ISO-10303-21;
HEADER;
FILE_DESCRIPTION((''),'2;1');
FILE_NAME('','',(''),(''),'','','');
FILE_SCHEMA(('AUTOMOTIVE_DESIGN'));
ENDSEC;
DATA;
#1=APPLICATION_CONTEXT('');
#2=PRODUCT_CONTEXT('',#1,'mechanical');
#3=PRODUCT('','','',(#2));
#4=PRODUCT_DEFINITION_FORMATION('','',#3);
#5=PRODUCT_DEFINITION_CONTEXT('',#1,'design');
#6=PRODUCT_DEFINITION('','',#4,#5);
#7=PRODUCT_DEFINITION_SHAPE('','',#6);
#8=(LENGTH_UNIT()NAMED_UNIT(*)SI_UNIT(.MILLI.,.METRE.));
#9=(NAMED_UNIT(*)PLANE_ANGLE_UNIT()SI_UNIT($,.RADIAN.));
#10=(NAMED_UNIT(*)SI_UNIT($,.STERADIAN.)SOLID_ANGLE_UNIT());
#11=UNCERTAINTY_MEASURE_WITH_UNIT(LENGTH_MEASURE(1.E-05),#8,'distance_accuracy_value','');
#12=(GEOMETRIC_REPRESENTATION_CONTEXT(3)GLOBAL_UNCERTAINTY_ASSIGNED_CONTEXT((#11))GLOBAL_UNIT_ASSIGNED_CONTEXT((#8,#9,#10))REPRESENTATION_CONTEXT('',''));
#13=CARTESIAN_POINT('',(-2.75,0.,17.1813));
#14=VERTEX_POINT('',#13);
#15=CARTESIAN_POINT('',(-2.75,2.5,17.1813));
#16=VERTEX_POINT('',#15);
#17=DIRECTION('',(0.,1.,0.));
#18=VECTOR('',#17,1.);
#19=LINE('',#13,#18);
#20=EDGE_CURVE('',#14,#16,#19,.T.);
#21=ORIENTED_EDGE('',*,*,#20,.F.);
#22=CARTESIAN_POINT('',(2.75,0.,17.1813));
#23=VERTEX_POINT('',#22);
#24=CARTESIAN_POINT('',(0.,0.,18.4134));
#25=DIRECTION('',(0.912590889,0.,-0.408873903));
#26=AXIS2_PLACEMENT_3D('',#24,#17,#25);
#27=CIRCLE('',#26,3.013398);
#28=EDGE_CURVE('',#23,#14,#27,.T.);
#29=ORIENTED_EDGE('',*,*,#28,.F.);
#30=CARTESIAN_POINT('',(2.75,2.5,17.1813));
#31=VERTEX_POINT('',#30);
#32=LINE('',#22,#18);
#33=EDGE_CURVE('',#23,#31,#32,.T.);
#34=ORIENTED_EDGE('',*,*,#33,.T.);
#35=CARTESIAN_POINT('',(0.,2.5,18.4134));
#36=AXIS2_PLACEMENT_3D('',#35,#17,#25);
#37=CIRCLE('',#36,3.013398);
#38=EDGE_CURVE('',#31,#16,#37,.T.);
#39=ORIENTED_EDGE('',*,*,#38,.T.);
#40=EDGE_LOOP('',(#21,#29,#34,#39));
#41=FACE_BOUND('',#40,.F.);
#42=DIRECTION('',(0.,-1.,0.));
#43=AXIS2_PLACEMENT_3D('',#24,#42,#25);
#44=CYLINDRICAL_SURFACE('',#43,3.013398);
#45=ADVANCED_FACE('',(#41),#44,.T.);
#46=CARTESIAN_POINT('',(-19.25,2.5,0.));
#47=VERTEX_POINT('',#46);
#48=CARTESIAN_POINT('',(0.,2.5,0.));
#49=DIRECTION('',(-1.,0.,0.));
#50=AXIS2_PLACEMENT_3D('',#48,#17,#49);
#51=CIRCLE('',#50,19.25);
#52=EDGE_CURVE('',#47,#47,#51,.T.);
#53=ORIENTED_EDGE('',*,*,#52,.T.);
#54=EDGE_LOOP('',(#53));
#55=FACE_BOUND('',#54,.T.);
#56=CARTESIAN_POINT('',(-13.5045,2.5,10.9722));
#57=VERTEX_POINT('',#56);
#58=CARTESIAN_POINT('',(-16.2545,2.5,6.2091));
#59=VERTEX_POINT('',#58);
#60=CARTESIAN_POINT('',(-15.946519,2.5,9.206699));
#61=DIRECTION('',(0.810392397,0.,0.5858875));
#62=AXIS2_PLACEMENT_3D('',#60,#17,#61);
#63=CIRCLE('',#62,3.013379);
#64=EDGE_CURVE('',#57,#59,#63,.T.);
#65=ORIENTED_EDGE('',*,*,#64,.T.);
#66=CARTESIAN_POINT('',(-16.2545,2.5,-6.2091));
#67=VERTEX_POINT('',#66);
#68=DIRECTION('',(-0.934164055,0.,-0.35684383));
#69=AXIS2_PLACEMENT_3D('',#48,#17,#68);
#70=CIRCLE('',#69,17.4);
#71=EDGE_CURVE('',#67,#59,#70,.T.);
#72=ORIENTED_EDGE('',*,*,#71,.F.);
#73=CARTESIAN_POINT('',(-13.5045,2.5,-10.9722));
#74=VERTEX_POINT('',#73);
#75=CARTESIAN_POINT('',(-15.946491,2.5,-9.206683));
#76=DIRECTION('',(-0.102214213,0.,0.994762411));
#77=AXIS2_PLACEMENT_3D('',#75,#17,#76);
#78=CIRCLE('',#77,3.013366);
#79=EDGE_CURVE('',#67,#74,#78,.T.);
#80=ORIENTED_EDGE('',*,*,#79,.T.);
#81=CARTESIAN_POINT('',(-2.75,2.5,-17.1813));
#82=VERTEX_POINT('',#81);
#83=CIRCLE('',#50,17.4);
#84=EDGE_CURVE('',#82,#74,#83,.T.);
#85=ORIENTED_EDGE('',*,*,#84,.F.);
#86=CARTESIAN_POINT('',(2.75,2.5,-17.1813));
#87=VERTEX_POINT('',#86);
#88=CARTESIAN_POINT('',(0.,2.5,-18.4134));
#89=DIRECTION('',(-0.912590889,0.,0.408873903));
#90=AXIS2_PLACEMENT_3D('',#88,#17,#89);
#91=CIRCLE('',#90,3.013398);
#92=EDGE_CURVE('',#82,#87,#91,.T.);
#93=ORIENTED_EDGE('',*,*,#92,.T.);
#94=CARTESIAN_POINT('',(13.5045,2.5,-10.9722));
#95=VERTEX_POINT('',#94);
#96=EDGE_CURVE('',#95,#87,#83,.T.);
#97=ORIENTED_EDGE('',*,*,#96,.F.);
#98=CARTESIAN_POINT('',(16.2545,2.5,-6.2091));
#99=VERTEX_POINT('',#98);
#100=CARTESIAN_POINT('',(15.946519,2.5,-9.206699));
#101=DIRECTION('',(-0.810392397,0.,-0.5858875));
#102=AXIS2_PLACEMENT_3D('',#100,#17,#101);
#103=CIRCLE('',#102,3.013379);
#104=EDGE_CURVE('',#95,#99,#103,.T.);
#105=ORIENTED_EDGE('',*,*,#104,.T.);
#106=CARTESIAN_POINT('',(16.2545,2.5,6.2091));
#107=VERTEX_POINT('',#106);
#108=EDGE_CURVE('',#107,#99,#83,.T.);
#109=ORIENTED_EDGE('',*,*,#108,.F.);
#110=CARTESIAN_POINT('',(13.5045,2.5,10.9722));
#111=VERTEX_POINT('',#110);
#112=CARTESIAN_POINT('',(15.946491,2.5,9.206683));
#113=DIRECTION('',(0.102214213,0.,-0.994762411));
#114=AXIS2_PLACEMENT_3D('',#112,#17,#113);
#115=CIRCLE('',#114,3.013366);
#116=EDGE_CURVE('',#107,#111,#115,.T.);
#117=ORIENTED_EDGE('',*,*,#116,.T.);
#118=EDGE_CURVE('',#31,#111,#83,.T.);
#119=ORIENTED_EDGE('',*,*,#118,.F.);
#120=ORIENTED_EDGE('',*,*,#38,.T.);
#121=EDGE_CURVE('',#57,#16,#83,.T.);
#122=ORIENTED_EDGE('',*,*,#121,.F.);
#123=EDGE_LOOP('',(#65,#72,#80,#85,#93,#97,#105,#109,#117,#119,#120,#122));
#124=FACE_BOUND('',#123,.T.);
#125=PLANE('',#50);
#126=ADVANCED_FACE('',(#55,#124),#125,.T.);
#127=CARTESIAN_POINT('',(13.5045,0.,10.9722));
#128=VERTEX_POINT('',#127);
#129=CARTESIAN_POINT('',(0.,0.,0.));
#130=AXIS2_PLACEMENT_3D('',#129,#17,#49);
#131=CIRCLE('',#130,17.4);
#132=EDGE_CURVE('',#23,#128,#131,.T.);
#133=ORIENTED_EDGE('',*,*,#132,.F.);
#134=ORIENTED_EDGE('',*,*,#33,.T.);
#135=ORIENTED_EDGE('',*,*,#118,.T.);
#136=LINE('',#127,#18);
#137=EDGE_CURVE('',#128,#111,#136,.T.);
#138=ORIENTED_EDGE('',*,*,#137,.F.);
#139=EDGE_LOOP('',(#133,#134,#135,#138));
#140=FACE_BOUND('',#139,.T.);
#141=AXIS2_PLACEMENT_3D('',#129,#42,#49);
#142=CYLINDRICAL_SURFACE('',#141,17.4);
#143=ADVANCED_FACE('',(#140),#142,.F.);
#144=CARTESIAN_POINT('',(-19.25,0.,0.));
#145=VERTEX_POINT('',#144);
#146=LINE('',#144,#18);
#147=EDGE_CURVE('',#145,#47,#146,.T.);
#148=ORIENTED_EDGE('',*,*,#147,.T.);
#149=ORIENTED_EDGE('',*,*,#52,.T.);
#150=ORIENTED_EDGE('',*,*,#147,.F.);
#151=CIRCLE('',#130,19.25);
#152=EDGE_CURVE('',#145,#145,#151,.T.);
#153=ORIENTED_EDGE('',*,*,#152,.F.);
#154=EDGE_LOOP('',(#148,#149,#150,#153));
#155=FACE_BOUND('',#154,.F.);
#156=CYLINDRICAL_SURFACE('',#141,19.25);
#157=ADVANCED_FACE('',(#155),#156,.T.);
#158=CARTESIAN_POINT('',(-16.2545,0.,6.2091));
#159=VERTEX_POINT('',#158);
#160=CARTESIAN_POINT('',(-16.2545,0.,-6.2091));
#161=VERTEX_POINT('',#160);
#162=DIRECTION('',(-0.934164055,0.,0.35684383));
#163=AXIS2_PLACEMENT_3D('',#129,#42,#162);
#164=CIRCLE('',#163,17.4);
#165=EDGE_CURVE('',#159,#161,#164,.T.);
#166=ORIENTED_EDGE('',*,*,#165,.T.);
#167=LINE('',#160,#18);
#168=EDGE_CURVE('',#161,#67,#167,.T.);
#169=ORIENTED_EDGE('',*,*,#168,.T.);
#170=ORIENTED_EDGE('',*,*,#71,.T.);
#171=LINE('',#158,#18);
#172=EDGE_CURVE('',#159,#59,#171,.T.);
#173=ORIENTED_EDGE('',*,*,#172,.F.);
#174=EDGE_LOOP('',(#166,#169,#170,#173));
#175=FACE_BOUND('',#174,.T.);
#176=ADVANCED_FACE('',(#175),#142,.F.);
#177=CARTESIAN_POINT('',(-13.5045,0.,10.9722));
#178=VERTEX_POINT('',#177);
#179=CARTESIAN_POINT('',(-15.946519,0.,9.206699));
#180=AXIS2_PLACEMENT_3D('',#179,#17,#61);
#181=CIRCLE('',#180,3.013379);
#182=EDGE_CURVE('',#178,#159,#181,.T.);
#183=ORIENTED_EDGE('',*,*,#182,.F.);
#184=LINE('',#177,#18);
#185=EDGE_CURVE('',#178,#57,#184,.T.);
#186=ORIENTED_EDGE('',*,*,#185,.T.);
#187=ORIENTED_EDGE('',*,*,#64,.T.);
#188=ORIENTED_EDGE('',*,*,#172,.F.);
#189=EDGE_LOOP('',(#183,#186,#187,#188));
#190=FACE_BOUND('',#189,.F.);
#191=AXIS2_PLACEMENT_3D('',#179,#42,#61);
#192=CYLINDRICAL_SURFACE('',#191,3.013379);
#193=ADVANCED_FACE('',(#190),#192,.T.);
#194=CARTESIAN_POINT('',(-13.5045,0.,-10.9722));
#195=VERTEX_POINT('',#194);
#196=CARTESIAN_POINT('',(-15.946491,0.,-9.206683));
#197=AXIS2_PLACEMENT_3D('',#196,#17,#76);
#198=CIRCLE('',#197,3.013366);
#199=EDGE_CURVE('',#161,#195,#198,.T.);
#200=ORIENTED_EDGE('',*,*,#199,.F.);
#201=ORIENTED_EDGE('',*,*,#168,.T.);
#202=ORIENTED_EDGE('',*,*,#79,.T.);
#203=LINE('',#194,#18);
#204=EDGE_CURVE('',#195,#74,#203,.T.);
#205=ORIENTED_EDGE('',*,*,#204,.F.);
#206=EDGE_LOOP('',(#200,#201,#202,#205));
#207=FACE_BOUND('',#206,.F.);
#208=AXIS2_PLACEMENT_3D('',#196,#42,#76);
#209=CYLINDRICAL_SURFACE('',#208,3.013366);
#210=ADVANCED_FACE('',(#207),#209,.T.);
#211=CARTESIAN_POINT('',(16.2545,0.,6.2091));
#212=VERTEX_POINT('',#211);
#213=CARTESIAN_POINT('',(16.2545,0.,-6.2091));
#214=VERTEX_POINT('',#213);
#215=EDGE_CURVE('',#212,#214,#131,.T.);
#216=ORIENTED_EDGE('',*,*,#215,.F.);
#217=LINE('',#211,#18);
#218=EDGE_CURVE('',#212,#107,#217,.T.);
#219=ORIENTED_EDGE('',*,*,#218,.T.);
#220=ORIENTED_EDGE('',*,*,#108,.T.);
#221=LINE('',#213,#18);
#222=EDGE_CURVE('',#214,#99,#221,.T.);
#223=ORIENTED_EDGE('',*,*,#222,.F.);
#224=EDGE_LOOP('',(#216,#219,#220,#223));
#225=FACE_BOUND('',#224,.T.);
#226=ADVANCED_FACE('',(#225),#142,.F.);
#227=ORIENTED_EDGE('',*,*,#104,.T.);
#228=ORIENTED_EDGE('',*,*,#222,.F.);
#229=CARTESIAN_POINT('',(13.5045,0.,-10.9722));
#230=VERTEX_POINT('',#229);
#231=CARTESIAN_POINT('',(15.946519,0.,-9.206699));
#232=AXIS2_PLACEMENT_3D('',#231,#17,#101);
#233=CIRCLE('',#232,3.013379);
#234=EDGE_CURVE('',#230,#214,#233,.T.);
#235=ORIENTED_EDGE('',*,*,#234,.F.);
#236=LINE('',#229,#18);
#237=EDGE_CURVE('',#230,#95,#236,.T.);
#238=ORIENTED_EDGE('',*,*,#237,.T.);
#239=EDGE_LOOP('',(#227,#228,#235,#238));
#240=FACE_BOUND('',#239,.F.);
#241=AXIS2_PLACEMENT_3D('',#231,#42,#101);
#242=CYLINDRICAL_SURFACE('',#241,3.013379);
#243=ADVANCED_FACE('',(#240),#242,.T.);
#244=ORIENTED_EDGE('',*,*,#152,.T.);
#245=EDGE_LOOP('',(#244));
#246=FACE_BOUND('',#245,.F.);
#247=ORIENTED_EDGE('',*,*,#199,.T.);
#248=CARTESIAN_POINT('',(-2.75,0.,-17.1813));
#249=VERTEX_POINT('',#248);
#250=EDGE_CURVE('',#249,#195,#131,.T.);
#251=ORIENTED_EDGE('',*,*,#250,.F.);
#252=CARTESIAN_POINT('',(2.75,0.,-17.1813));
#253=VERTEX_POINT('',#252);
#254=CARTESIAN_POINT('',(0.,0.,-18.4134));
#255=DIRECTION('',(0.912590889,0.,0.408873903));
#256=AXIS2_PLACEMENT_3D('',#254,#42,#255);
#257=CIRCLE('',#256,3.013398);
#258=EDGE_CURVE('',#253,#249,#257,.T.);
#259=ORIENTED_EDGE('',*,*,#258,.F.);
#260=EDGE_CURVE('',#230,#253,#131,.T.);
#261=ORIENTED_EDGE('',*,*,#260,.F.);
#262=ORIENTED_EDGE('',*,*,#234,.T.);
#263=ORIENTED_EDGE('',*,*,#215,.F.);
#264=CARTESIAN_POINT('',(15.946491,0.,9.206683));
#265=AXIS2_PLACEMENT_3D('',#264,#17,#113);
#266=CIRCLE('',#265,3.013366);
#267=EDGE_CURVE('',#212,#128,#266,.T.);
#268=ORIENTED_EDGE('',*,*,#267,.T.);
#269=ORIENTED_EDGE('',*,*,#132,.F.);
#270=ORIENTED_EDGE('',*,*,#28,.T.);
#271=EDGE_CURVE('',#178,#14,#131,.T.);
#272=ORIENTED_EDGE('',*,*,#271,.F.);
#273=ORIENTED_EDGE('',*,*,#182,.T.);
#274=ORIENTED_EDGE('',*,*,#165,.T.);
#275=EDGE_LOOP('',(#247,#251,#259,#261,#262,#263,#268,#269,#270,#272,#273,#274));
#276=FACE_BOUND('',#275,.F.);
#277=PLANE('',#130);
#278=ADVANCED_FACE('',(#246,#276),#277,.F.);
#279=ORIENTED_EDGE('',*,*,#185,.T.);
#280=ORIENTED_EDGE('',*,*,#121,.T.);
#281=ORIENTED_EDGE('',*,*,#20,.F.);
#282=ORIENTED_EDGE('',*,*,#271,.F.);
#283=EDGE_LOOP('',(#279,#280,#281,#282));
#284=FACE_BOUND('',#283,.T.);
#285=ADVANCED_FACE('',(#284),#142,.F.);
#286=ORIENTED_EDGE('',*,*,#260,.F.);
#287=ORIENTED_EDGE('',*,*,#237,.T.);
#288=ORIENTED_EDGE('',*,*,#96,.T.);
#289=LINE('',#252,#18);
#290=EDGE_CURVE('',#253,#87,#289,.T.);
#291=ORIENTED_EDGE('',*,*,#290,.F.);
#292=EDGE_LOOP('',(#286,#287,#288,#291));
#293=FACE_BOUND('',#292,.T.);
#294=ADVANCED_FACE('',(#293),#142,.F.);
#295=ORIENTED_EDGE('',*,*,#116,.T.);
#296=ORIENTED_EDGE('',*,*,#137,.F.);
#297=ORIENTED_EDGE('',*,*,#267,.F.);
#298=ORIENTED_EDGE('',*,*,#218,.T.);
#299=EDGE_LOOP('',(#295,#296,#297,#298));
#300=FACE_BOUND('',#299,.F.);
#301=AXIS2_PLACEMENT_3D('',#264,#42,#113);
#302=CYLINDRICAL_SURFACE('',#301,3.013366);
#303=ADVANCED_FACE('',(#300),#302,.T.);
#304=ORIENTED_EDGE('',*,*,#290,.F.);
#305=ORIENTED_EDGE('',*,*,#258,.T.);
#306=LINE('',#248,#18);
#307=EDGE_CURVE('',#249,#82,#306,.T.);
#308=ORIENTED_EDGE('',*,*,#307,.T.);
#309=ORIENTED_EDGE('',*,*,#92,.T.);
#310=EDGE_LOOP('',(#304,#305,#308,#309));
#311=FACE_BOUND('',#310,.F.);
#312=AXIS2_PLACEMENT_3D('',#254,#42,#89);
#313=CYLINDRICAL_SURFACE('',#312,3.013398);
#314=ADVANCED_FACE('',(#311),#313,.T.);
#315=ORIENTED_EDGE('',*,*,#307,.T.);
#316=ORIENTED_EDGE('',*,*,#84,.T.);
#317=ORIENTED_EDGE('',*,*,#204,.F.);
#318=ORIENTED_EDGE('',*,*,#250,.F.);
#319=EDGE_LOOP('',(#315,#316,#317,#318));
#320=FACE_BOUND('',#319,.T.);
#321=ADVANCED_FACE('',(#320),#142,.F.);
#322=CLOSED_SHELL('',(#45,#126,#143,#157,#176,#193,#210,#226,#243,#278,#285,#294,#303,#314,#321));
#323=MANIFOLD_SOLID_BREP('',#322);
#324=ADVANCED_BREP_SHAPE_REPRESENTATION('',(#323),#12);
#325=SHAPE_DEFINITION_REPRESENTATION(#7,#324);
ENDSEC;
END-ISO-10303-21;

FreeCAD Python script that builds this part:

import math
import FreeCAD as App
import Part
import Sketcher

V = App.Vector

doc = App.newDocument("Part")
body = doc.addObject("PartDesign::Body", "Body")

sketch1 = doc.addObject("Sketcher::SketchObject", "Sketch")
body.addObject(sketch1)
sketch1.AttachmentSupport = (doc.XZ_Plane, [""])
sketch1.MapMode = "FlatFace"
sketch1.addGeometry([
    Part.Circle(V(0, 0, 0), V(0, 0, 1), 19.2),
    Part.ArcOfCircle(Part.Circle(V(-15.9, 9.2, 0), V(0, 0, 1), 3), math.radians(-96), math.radians(36)),
    Part.ArcOfCircle(Part.Circle(V(0, 0, 0), V(0, 0, 1), 17.4), math.radians(159), math.radians(201)),
    Part.ArcOfCircle(Part.Circle(V(-15.9, -9.2, 0), V(0, 0, 1), 3), math.radians(-36), math.radians(96)),
    Part.ArcOfCircle(Part.Circle(V(0, 0, 0), V(0, 0, 1), 17.4), math.radians(-141), math.radians(-99)),
    Part.ArcOfCircle(Part.Circle(V(0, -18.4, 0), V(0, 0, 1), 3), math.radians(24), math.radians(156)),
    Part.ArcOfCircle(Part.Circle(V(0, 0, 0), V(0, 0, 1), 17.4), math.radians(-81), math.radians(-39)),
    Part.ArcOfCircle(Part.Circle(V(15.9, -9.2, 0), V(0, 0, 1), 3), math.radians(84), math.radians(216)),
    Part.ArcOfCircle(Part.Circle(V(0, 0, 0), V(0, 0, 1), 17.4), math.radians(-21), math.radians(21)),
    Part.ArcOfCircle(Part.Circle(V(15.9, 9.2, 0), V(0, 0, 1), 3), math.radians(144), math.radians(276)),
    Part.ArcOfCircle(Part.Circle(V(0, 0, 0), V(0, 0, 1), 17.4), math.radians(39), math.radians(81)),
    Part.ArcOfCircle(Part.Circle(V(0, 18.4, 0), V(0, 0, 1), 3), math.radians(-156), math.radians(-24)),
    Part.ArcOfCircle(Part.Circle(V(0, 0, 0), V(0, 0, 1), 17.4), math.radians(99), math.radians(141)),
], False)
sketch1.addConstraint([
    Sketcher.Constraint("Coincident", 1, 1, 2, 1),
    Sketcher.Constraint("Coincident", 2, 2, 3, 2),
    Sketcher.Constraint("Coincident", 3, 1, 4, 1),
    Sketcher.Constraint("Coincident", 4, 2, 5, 2),
    Sketcher.Constraint("Coincident", 5, 1, 6, 1),
    Sketcher.Constraint("Coincident", 6, 2, 7, 2),
    Sketcher.Constraint("Coincident", 7, 1, 8, 1),
    Sketcher.Constraint("Coincident", 8, 2, 9, 2),
    Sketcher.Constraint("Coincident", 9, 1, 10, 1),
    Sketcher.Constraint("Coincident", 10, 2, 11, 2),
    Sketcher.Constraint("Coincident", 11, 1, 12, 1),
    Sketcher.Constraint("Coincident", 12, 2, 1, 2),
    Sketcher.Constraint("Coincident", 0, 3, -1, 1),
    Sketcher.Constraint("Coincident", 2, 3, -1, 1),
    Sketcher.Constraint("Coincident", 4, 3, -1, 1),
    Sketcher.Constraint("Coincident", 6, 3, -1, 1),
    Sketcher.Constraint("Coincident", 8, 3, -1, 1),
    Sketcher.Constraint("Coincident", 10, 3, -1, 1),
    Sketcher.Constraint("Coincident", 12, 3, -1, 1),
    Sketcher.Constraint("Equal", 1, 3),
    Sketcher.Constraint("Equal", 2, 4),
    Sketcher.Constraint("Equal", 3, 5),
    Sketcher.Constraint("Equal", 4, 6),
    Sketcher.Constraint("Equal", 5, 7),
    Sketcher.Constraint("Equal", 6, 8),
    Sketcher.Constraint("Equal", 7, 9),
    Sketcher.Constraint("Equal", 8, 10),
    Sketcher.Constraint("Equal", 9, 11),
    Sketcher.Constraint("Equal", 10, 12),
    Sketcher.Constraint("Symmetric", 1, 3, 7, 3, -1, 1),
    Sketcher.Constraint("Symmetric", 3, 3, 9, 3, -1, 1),
    Sketcher.Constraint("Symmetric", 5, 3, 11, 3, -1, 1),
    Sketcher.Constraint("Symmetric", 3, 3, 7, 3, -2),
    Sketcher.Constraint("PointOnObject", 5, 3, -2),
    Sketcher.Constraint("Diameter", 0, 38.5),
    Sketcher.Constraint("Radius", 2, 17.4),
    Sketcher.Constraint("DistanceX", 4, 2, 5, 1, 5.5),
    Sketcher.Constraint("Radius", 1, 3.0134),
    Sketcher.Constraint("DistanceY", 5, 3, 1, 3, 27.62),
    Sketcher.Constraint("DistanceX", 2, 2, 3, 1, 2.75),
])
pad1 = doc.addObject("PartDesign::Pad", "Pad")
body.addObject(pad1)
pad1.Profile = sketch1
pad1.Length = 2.5
pad1.Reversed = True

doc.recompute()
